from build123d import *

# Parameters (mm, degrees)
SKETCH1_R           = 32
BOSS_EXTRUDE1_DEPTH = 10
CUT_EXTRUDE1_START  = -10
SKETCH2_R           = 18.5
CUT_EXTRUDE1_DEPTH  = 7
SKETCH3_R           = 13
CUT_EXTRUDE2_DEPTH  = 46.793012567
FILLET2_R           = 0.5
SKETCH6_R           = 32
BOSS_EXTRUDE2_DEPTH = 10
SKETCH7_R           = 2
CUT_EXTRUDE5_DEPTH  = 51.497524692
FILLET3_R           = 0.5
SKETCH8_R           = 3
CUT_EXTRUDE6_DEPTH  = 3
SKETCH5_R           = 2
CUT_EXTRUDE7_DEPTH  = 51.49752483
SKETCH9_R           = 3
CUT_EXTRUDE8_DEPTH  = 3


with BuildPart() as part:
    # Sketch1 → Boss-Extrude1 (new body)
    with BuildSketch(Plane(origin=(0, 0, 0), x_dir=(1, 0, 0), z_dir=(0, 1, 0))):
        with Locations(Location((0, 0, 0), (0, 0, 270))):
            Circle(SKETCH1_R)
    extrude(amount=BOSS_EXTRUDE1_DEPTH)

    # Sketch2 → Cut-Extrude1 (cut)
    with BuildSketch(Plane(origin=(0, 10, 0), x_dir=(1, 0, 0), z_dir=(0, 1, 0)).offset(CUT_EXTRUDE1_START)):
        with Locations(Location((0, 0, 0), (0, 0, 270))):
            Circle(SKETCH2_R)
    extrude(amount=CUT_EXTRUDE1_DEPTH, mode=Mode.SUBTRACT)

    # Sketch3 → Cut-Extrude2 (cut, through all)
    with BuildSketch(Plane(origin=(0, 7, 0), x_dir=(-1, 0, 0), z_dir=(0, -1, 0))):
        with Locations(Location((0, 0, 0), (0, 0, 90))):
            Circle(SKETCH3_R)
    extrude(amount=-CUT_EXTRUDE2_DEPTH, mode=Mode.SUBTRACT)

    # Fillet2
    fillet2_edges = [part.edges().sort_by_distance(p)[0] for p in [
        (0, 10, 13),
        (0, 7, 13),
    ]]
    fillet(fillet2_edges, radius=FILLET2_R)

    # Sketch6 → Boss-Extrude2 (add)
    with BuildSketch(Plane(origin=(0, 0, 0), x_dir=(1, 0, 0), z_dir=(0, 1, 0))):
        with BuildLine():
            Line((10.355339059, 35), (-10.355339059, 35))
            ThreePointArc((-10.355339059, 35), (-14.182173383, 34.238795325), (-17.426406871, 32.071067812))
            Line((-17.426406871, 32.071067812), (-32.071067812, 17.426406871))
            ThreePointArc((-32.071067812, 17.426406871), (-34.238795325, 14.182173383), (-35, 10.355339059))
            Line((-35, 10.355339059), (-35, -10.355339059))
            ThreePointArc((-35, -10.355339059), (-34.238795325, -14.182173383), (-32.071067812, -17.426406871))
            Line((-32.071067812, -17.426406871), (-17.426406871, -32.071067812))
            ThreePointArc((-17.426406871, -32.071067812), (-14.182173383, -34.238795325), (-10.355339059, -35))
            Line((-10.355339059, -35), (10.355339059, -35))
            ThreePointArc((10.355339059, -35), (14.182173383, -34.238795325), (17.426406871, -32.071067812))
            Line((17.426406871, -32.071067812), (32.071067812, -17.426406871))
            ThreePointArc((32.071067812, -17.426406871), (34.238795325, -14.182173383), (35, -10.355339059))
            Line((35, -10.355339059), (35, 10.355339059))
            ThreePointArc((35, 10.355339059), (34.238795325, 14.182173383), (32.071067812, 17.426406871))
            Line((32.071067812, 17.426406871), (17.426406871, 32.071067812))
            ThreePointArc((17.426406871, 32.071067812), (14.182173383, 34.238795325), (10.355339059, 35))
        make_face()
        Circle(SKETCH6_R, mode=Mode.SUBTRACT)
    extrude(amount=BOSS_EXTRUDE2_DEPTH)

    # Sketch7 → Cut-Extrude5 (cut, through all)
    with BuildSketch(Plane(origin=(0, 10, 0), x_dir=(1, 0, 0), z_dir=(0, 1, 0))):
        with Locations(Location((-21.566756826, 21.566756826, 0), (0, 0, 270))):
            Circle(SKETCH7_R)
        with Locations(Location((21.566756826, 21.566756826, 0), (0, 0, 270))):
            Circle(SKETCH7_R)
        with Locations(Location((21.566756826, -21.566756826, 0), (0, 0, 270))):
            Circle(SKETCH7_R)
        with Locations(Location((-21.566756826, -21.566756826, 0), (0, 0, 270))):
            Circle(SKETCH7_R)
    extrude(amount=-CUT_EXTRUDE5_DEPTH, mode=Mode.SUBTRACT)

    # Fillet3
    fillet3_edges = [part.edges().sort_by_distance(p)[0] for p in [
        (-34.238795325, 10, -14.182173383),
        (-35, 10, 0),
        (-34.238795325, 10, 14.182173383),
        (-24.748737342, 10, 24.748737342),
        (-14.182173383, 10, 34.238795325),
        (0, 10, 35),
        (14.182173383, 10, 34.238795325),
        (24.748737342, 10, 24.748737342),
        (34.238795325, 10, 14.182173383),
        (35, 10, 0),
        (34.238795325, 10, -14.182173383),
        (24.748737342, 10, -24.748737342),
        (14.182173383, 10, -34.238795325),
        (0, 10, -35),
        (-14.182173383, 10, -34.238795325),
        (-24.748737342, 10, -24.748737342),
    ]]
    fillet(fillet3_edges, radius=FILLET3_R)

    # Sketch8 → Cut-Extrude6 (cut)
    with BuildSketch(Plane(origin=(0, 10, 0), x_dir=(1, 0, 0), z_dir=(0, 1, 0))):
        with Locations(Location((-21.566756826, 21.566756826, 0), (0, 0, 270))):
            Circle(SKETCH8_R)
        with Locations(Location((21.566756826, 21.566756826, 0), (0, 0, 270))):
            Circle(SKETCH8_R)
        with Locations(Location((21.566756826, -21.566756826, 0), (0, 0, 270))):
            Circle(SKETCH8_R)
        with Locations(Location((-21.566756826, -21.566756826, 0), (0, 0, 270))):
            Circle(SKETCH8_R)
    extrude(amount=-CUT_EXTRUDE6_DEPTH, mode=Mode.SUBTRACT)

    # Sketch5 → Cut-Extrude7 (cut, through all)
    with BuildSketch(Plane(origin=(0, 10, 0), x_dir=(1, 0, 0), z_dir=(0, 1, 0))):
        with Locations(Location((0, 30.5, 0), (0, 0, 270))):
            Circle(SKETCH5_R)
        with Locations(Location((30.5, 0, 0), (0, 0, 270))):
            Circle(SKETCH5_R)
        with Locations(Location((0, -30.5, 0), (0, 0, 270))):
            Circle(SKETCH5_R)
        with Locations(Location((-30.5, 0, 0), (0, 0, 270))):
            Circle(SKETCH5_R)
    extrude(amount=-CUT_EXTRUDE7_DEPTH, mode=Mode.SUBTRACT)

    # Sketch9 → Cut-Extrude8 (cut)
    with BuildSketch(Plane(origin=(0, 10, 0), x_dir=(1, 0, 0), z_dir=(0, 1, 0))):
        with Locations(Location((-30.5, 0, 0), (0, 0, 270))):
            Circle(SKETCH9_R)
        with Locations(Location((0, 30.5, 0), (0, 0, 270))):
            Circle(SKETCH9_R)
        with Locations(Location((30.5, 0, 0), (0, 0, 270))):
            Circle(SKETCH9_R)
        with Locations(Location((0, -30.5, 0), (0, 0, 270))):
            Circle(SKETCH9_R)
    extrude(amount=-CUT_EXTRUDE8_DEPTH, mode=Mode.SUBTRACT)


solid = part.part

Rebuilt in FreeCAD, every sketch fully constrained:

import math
import FreeCAD as App
import Part
import Sketcher

V = App.Vector


def edges_at(feature, points):
    """Names of the edges that pass closest to the given points."""
    edges = feature.Shape.Edges
    near = lambda p: min(range(len(edges)), key=lambda i: edges[i].distToShape(Part.Vertex(*p))[0])
    return sorted({f"Edge{near(p) + 1}" for p in points})

doc = App.newDocument("Part")
body = doc.addObject("PartDesign::Body", "Body")

# Sketch on XZ plane
sketch1 = body.newObject("Sketcher::SketchObject", "Sketch")
sketch1.AttachmentSupport = (doc.getObject("XZ_Plane"), [""])
sketch1.MapMode = "FlatFace"
sketch1.addGeometry(Part.Circle(V(0, 0, 0), V(0, 0, 1), 32), False)
sketch1.addConstraint([
    Sketcher.Constraint("Coincident", 0, 3, -1, 1),
    Sketcher.Constraint("Diameter", 0, 64.0),
])
pad1 = body.newObject("PartDesign::Pad", "Pad")
pad1.Profile = sketch1
pad1.Length = 10
pad1.Reversed = True

# Sketch on XZ plane
sketch2 = body.newObject("Sketcher::SketchObject", "Sketch001")
sketch2.AttachmentSupport = (doc.getObject("XZ_Plane"), [""])
sketch2.MapMode = "FlatFace"
sketch2.addGeometry(Part.Circle(V(0, 0, 0), V(0, 0, 1), 18), False)
sketch2.addConstraint([
    Sketcher.Constraint("Coincident", 0, 3, -1, 1),
    Sketcher.Constraint("Diameter", 0, 37.0),
])
pocket1 = body.newObject("PartDesign::Pocket", "Pocket")
pocket1.Profile = sketch2
pocket1.Length = 7

# Sketch on XZ plane
sketch3 = body.newObject("Sketcher::SketchObject", "Sketch002")
sketch3.AttachmentSupport = (doc.getObject("XZ_Plane"), [""])
sketch3.MapMode = "FlatFace"
sketch3.AttachmentOffset = App.Placement(V(0, 0, -7), App.Rotation())
sketch3.addGeometry(Part.Circle(V(0, 0, 0), V(0, 0, 1), 13), False)
sketch3.addConstraint([
    Sketcher.Constraint("Coincident", 0, 3, -1, 1),
    Sketcher.Constraint("Diameter", 0, 26.0),
])
pocket2 = body.newObject("PartDesign::Pocket", "Pocket001")
pocket2.Profile = sketch3
pocket2.Type = "ThroughAll"
doc.recompute()

fillet = body.newObject("PartDesign::Fillet", "Fillet")
fillet.Base = (pocket2, edges_at(pocket2, [(0, 10, 13), (0, 7, 13)]))
fillet.Radius = 0.5

# Sketch on XZ plane
sketch4 = body.newObject("Sketcher::SketchObject", "Sketch003")
sketch4.AttachmentSupport = (doc.getObject("XZ_Plane"), [""])
sketch4.MapMode = "FlatFace"
sketch4.addGeometry([
    Part.LineSegment(V(10, -35, 0), V(-10, -35, 0)),  # 0
    Part.ArcOfCircle(Part.Circle(V(-10, -25, 0), V(0, 0, 1), 10), math.radians(-135), math.radians(-90)),  # 1
    Part.LineSegment(V(-17, -32, 0), V(-32, -17, 0)),  # 2
    Part.ArcOfCircle(Part.Circle(V(-25, -10, 0), V(0, 0, 1), 10), math.radians(180), math.radians(225)),  # 3
    Part.LineSegment(V(-35, -10, 0), V(-35, 10, 0)),  # 4
    Part.ArcOfCircle(Part.Circle(V(-25, 10, 0), V(0, 0, 1), 10), math.radians(135), math.radians(180)),  # 5
    Part.LineSegment(V(-32, 17, 0), V(-17, 32, 0)),  # 6
    Part.ArcOfCircle(Part.Circle(V(-10, 25, 0), V(0, 0, 1), 10), math.radians(90), math.radians(135)),  # 7
    Part.LineSegment(V(-10, 35, 0), V(10, 35, 0)),  # 8
    Part.ArcOfCircle(Part.Circle(V(10, 25, 0), V(0, 0, 1), 10), math.radians(45), math.radians(90)),  # 9
    Part.LineSegment(V(17, 32, 0), V(32, 17, 0)),  # 10
    Part.ArcOfCircle(Part.Circle(V(25, 10, 0), V(0, 0, 1), 10), math.radians(0), math.radians(45)),  # 11
    Part.LineSegment(V(35, 10, 0), V(35, -10, 0)),  # 12
    Part.ArcOfCircle(Part.Circle(V(25, -10, 0), V(0, 0, 1), 10), math.radians(-45), math.radians(0)),  # 13
    Part.LineSegment(V(32, -17, 0), V(17, -32, 0)),  # 14
    Part.ArcOfCircle(Part.Circle(V(10, -25, 0), V(0, 0, 1), 10), math.radians(-90), math.radians(-45)),  # 15
    Part.Circle(V(0, 0, 0), V(0, 0, 1), 32),  # 16
], False)
sketch4.addConstraint([
    Sketcher.Constraint("Tangent", 0, 2, 1, 2),
    Sketcher.Constraint("Tangent", 1, 1, 2, 1),
    Sketcher.Constraint("Tangent", 2, 2, 3, 2),
    Sketcher.Constraint("Tangent", 3, 1, 4, 1),
    Sketcher.Constraint("Tangent", 4, 2, 5, 2),
    Sketcher.Constraint("Tangent", 5, 1, 6, 1),
    Sketcher.Constraint("Tangent", 6, 2, 7, 2),
    Sketcher.Constraint("Tangent", 7, 1, 8, 1),
    Sketcher.Constraint("Tangent", 8, 2, 9, 2),
    Sketcher.Constraint("Tangent", 9, 1, 10, 1),
    Sketcher.Constraint("Tangent", 10, 2, 11, 2),
    Sketcher.Constraint("Tangent", 11, 1, 12, 1),
    Sketcher.Constraint("Tangent", 12, 2, 13, 2),
    Sketcher.Constraint("Tangent", 13, 1, 14, 1),
    Sketcher.Constraint("Tangent", 14, 2, 15, 2),
    Sketcher.Constraint("Tangent", 15, 1, 0, 1),
    Sketcher.Constraint("Horizontal", 0),
    Sketcher.Constraint("Vertical", 4),
    Sketcher.Constraint("Horizontal", 8),
    Sketcher.Constraint("Vertical", 12),
    Sketcher.Constraint("Coincident", 16, 3, -1, 1),
    Sketcher.Constraint("Equal", 1, 3),
    Sketcher.Constraint("Equal", 3, 5),
    Sketcher.Constraint("Equal", 5, 7),
    Sketcher.Constraint("Equal", 7, 9),
    Sketcher.Constraint("Equal", 9, 11),
    Sketcher.Constraint("Equal", 11, 13),
    Sketcher.Constraint("Equal", 13, 15),
    Sketcher.Constraint("Symmetric", 1, 3, 9, 3, -1, 1),
    Sketcher.Constraint("Symmetric", 3, 3, 11, 3, -1, 1),
    Sketcher.Constraint("Symmetric", 5, 1, 13, 1, -1, 1),
    Sketcher.Constraint("Symmetric", 6, 2, 9, 1, -2),
    Sketcher.Constraint("Perpendicular", 2, 6),
    Sketcher.Constraint("Equal", 8, 4),
    Sketcher.Constraint("Diameter", 16, 64.0),
    Sketcher.Constraint("Radius", 1, 10.0),
    Sketcher.Constraint("DistanceY", 1, 3, -1, 1, 25.0),
    Sketcher.Constraint("DistanceX", 0, 2, 0, 1, 20.710678),
])
pad2 = body.newObject("PartDesign::Pad", "Pad001")
pad2.Profile = sketch4
pad2.Length = 10
pad2.Reversed = True

# Sketch on XZ plane
sketch5 = body.newObject("Sketcher::SketchObject", "Sketch004")
sketch5.AttachmentSupport = (doc.getObject("XZ_Plane"), [""])
sketch5.MapMode = "FlatFace"
sketch5.AttachmentOffset = App.Placement(V(0, 0, -10), App.Rotation())
sketch5.addGeometry([
    Part.Circle(V(-21.6, -21.6, 0), V(0, 0, 1), 2),
    Part.Circle(V(21.6, -21.6, 0), V(0, 0, 1), 2),
    Part.Circle(V(21.6, 21.6, 0), V(0, 0, 1), 2),
    Part.Circle(V(-21.6, 21.6, 0), V(0, 0, 1), 2),
], False)
sketch5.addConstraint([
    Sketcher.Constraint("Equal", 0, 1),
    Sketcher.Constraint("Equal", 1, 2),
    Sketcher.Constraint("Equal", 2, 3),
    Sketcher.Constraint("Symmetric", 0, 3, 2, 3, -1, 1),
    Sketcher.Constraint("Symmetric", 1, 3, 3, 3, -1, 1),
    Sketcher.Constraint("Symmetric", 0, 3, 1, 3, -2),
    Sketcher.Constraint("Diameter", 0, 4.0),
    Sketcher.Constraint("DistanceX", 0, 3, -1, 1, 21.566757),
    Sketcher.Constraint("DistanceY", 0, 3, -1, 1, 21.566757),
])
pocket3 = body.newObject("PartDesign::Pocket", "Pocket002")
pocket3.Profile = sketch5
pocket3.Type = "ThroughAll"
pocket3.Reversed = True
doc.recompute()

fillet2 = body.newObject("PartDesign::Fillet", "Fillet001")
fillet2.Base = (pocket3, edges_at(pocket3, [
    (-34.239, 10, -14.182),
    (-35, 10, 0),
    (-34.239, 10, 14.182),
    (-24.749, 10, 24.749),
    (-14.182, 10, 34.239),
    (0, 10, 35),
    (14.182, 10, 34.239),
    (24.749, 10, 24.749),
    (34.239, 10, 14.182),
    (35, 10, 0),
    (34.239, 10, -14.182),
    (24.749, 10, -24.749),
    (14.182, 10, -34.239),
    (0, 10, -35),
    (-14.182, 10, -34.239),
    (-24.749, 10, -24.749),
]))
fillet2.Radius = 0.5

# Sketch on XZ plane
sketch6 = body.newObject("Sketcher::SketchObject", "Sketch005")
sketch6.AttachmentSupport = (doc.getObject("XZ_Plane"), [""])
sketch6.MapMode = "FlatFace"
sketch6.AttachmentOffset = App.Placement(V(0, 0, -10), App.Rotation())
sketch6.addGeometry([
    Part.Circle(V(-21.6, -21.6, 0), V(0, 0, 1), 3),
    Part.Circle(V(21.6, -21.6, 0), V(0, 0, 1), 3),
    Part.Circle(V(21.6, 21.6, 0), V(0, 0, 1), 3),
    Part.Circle(V(-21.6, 21.6, 0), V(0, 0, 1), 3),
], False)
sketch6.addConstraint([
    Sketcher.Constraint("Equal", 0, 1),
    Sketcher.Constraint("Equal", 1, 2),
    Sketcher.Constraint("Equal", 2, 3),
    Sketcher.Constraint("Symmetric", 0, 3, 2, 3, -1, 1),
    Sketcher.Constraint("Symmetric", 1, 3, 3, 3, -1, 1),
    Sketcher.Constraint("Symmetric", 0, 3, 1, 3, -2),
    Sketcher.Constraint("Diameter", 0, 6.0),
    Sketcher.Constraint("DistanceX", 0, 3, -1, 1, 21.566757),
    Sketcher.Constraint("DistanceY", 0, 3, -1, 1, 21.566757),
])
pocket4 = body.newObject("PartDesign::Pocket", "Pocket003")
pocket4.Profile = sketch6
pocket4.Length = 3
pocket4.Reversed = True

# Sketch on XZ plane
sketch7 = body.newObject("Sketcher::SketchObject", "Sketch006")
sketch7.AttachmentSupport = (doc.getObject("XZ_Plane"), [""])
sketch7.MapMode = "FlatFace"
sketch7.AttachmentOffset = App.Placement(V(0, 0, -10), App.Rotation())
sketch7.addGeometry([
    Part.Circle(V(0, -30.5, 0), V(0, 0, 1), 2),
    Part.Circle(V(30.5, 0, 0), V(0, 0, 1), 2),
    Part.Circle(V(0, 30.5, 0), V(0, 0, 1), 2),
    Part.Circle(V(-30.5, 0, 0), V(0, 0, 1), 2),
], False)
sketch7.addConstraint([
    Sketcher.Constraint("Equal", 0, 1),
    Sketcher.Constraint("Equal", 1, 2),
    Sketcher.Constraint("Equal", 2, 3),
    Sketcher.Constraint("Symmetric", 0, 3, 2, 3, -1, 1),
    Sketcher.Constraint("Symmetric", 1, 3, 3, 3, -1, 1),
    Sketcher.Constraint("PointOnObject", 0, 3, -2),
    Sketcher.Constraint("PointOnObject", 1, 3, -1),
    Sketcher.Constraint("Diameter", 0, 4.0),
    Sketcher.Constraint("DistanceY", 0, 3, 2, 3, 61.0),
    Sketcher.Constraint("DistanceX", 3, 3, 1, 3, 61.0),
])
pocket5 = body.newObject("PartDesign::Pocket", "Pocket004")
pocket5.Profile = sketch7
pocket5.Type = "ThroughAll"
pocket5.Reversed = True

# Sketch on XZ plane
sketch8 = body.newObject("Sketcher::SketchObject", "Sketch007")
sketch8.AttachmentSupport = (doc.getObject("XZ_Plane"), [""])
sketch8.MapMode = "FlatFace"
sketch8.AttachmentOffset = App.Placement(V(0, 0, -10), App.Rotation())
sketch8.addGeometry([
    Part.Circle(V(-30.5, 0, 0), V(0, 0, 1), 3),
    Part.Circle(V(0, -30.5, 0), V(0, 0, 1), 3),
    Part.Circle(V(30.5, 0, 0), V(0, 0, 1), 3),
    Part.Circle(V(0, 30.5, 0), V(0, 0, 1), 3),
], False)
sketch8.addConstraint([
    Sketcher.Constraint("Equal", 0, 1),
    Sketcher.Constraint("Equal", 1, 2),
    Sketcher.Constraint("Equal", 2, 3),
    Sketcher.Constraint("Symmetric", 0, 3, 2, 3, -1, 1),
    Sketcher.Constraint("Symmetric", 1, 3, 3, 3, -1, 1),
    Sketcher.Constraint("PointOnObject", 0, 3, -1),
    Sketcher.Constraint("PointOnObject", 1, 3, -2),
    Sketcher.Constraint("Diameter", 0, 6.0),
    Sketcher.Constraint("DistanceX", 0, 3, 2, 3, 61.0),
    Sketcher.Constraint("DistanceY", 1, 3, 3, 3, 61.0),
])
pocket6 = body.newObject("PartDesign::Pocket", "Pocket005")
pocket6.Profile = sketch8
pocket6.Length = 3
pocket6.Reversed = True

doc.recompute()
